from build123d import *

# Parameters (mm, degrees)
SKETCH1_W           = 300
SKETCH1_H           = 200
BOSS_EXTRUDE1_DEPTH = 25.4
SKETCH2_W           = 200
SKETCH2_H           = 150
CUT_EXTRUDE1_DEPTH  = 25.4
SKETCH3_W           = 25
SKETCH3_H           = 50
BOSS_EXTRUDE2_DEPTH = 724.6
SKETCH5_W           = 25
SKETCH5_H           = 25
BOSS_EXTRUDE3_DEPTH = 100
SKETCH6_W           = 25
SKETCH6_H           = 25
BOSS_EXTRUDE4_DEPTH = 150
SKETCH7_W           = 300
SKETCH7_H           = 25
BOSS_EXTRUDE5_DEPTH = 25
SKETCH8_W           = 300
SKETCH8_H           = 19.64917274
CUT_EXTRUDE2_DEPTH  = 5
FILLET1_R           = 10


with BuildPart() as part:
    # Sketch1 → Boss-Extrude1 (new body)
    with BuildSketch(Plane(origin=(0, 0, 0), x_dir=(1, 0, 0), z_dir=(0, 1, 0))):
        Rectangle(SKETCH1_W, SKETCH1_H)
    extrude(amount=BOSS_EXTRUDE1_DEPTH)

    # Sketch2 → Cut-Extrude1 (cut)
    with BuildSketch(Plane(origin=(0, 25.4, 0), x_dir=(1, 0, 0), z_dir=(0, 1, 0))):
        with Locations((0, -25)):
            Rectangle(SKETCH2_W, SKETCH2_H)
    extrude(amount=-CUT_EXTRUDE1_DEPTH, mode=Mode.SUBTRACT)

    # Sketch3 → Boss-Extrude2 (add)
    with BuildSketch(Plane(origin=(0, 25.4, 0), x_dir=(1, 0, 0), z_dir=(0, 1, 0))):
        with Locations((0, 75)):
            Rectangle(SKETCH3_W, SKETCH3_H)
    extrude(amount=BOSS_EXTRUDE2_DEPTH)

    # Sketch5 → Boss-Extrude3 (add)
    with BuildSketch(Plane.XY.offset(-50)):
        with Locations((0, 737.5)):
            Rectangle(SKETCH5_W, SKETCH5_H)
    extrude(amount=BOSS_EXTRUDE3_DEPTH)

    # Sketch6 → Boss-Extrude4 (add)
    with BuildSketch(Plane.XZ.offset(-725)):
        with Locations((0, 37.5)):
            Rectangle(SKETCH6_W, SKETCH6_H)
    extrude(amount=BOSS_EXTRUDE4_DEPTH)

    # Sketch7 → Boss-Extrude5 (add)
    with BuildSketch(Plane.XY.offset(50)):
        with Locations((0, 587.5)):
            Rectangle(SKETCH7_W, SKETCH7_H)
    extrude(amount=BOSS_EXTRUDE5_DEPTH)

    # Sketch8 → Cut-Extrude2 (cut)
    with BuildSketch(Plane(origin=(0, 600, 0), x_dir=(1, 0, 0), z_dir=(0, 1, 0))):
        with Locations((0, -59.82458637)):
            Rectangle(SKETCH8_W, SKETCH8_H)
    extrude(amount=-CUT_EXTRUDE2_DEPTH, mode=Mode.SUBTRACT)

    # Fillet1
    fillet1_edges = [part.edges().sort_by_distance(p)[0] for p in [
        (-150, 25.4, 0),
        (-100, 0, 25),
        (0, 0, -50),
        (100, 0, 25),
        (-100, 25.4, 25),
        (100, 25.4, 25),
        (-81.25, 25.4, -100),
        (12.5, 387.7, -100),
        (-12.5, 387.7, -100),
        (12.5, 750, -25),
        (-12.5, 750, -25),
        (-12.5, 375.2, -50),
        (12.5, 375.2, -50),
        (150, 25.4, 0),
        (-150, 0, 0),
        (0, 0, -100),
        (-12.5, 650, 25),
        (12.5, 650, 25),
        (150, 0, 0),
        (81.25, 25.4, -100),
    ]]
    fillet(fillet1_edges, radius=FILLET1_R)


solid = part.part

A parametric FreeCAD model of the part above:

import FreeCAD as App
import Part
import Sketcher
from FreeCAD import Vector


def edges_at(feature, points):
    """Names of the edges that pass closest to the given points."""
    edges = feature.Shape.Edges
    near = lambda p: min(range(len(edges)), key=lambda i: edges[i].distToShape(Part.Vertex(*p))[0])
    return sorted({f"Edge{near(p) + 1}" for p in points})


def add_polygon(sketch, points):
    """Adds a closed chain of lines whose ends are joined by coincident constraints."""
    first, n = sketch.GeometryCount, len(points)
    for a, b in zip(points, points[1:] + points[:1]):
        sketch.addGeometry(Part.LineSegment(App.Vector(*a, 0), App.Vector(*b, 0)), False)
    for i in range(n):
        sketch.addConstraint(Sketcher.Constraint("Coincident", first + i, 2, first + (i + 1) % n, 1))

doc = App.newDocument("Part")
body = doc.addObject("PartDesign::Body", "Body")

# Sketch on XZ plane
sketch1 = body.newObject("Sketcher::SketchObject", "Sketch")
sketch1.AttachmentSupport = (doc.getObject("XZ_Plane"), [""])
sketch1.MapMode = "FlatFace"
add_polygon(sketch1, [(-150, -100), (-150, 100), (150, 100), (150, -100)])  # lines 0-3
sketch1.addConstraint([
    Sketcher.Constraint("Vertical", 0),
    Sketcher.Constraint("Horizontal", 1),
    Sketcher.Constraint("Vertical", 2),
    Sketcher.Constraint("Horizontal", 3),
    Sketcher.Constraint("Symmetric", 0, 2, 2, 2, -1, 1),
    Sketcher.Constraint("DistanceX", 1, 1, 1, 2, 300.0),
    Sketcher.Constraint("DistanceY", 0, 1, 0, 2, 200.0),
])
pad1 = body.newObject("PartDesign::Pad", "Pad")
pad1.Profile = sketch1
pad1.Length = 25.4
pad1.Reversed = True

# Sketch on XZ plane
sketch2 = body.newObject("Sketcher::SketchObject", "Sketch001")
sketch2.AttachmentSupport = (doc.getObject("XZ_Plane"), [""])
sketch2.MapMode = "FlatFace"
sketch2.AttachmentOffset = App.Placement(Vector(0, 0, -25.4), App.Rotation())
add_polygon(sketch2, [(-100, -50), (-100, 100), (100, 100), (100, -50)])  # lines 0-3
sketch2.addConstraint([
    Sketcher.Constraint("Vertical", 0),
    Sketcher.Constraint("Horizontal", 1),
    Sketcher.Constraint("Vertical", 2),
    Sketcher.Constraint("Horizontal", 3),
    Sketcher.Constraint("DistanceX", 1, 1, 1, 2, 200.0),
    Sketcher.Constraint("DistanceY", 0, 1, 0, 2, 150.0),
    Sketcher.Constraint("DistanceX", 0, 2, -1, 1, 100.0),
    Sketcher.Constraint("DistanceY", -1, 1, 0, 2, 100.0),
])
pocket1 = body.newObject("PartDesign::Pocket", "Pocket")
pocket1.Profile = sketch2
pocket1.Length = 25.4
pocket1.Reversed = True

# Sketch on XZ plane
sketch3 = body.newObject("Sketcher::SketchObject", "Sketch002")
sketch3.AttachmentSupport = (doc.getObject("XZ_Plane"), [""])
sketch3.MapMode = "FlatFace"
sketch3.AttachmentOffset = App.Placement(Vector(0, 0, -25.4), App.Rotation())
add_polygon(sketch3, [(-12, -100), (-12, -50), (12, -50), (12, -100)])  # lines 0-3
sketch3.addConstraint([
    Sketcher.Constraint("Vertical", 0),
    Sketcher.Constraint("Horizontal", 1),
    Sketcher.Constraint("Vertical", 2),
    Sketcher.Constraint("Horizontal", 3),
    Sketcher.Constraint("DistanceX", 1, 1, 1, 2, 25.0),
    Sketcher.Constraint("DistanceY", 0, 1, 0, 2, 50.0),
    Sketcher.Constraint("DistanceY", 0, 2, -1, 1, 50.0),
    Sketcher.Constraint("DistanceX", 0, 2, -1, 1, 12.5),
])
pad2 = body.newObject("PartDesign::Pad", "Pad001")
pad2.Profile = sketch3
pad2.Length = 724.6
pad2.Reversed = True

# Sketch on XY plane
sketch4 = body.newObject("Sketcher::SketchObject", "Sketch003")
sketch4.AttachmentSupport = (doc.getObject("XY_Plane"), [""])
sketch4.MapMode = "FlatFace"
sketch4.AttachmentOffset = App.Placement(Vector(0, 0, -50), App.Rotation())
add_polygon(sketch4, [(-12, 750), (-12, 725), (12, 725), (12, 750)])  # lines 0-3
sketch4.addConstraint([
    Sketcher.Constraint("Vertical", 0),
    Sketcher.Constraint("Horizontal", 1),
    Sketcher.Constraint("Vertical", 2),
    Sketcher.Constraint("Horizontal", 3),
    Sketcher.Constraint("Equal", 3, 0),
    Sketcher.Constraint("DistanceX", 1, 1, 1, 2, 25.0),
    Sketcher.Constraint("DistanceY", -1, 1, 0, 2, 725.0),
    Sketcher.Constraint("DistanceX", 0, 2, -1, 1, 12.5),
])
pad3 = body.newObject("PartDesign::Pad", "Pad002")
pad3.Profile = sketch4
pad3.Length = 100

# Sketch on XZ plane
sketch5 = body.newObject("Sketcher::SketchObject", "Sketch004")
sketch5.AttachmentSupport = (doc.getObject("XZ_Plane"), [""])
sketch5.MapMode = "FlatFace"
sketch5.AttachmentOffset = App.Placement(Vector(0, 0, -725), App.Rotation())
add_polygon(sketch5, [(-12, 50), (-12, 25), (12, 25), (12, 50)])  # lines 0-3
sketch5.addConstraint([
    Sketcher.Constraint("Vertical", 0),
    Sketcher.Constraint("Horizontal", 1),
    Sketcher.Constraint("Vertical", 2),
    Sketcher.Constraint("Horizontal", 3),
    Sketcher.Constraint("Equal", 3, 0),
    Sketcher.Constraint("DistanceX", 1, 1, 1, 2, 25.0),
    Sketcher.Constraint("DistanceY", -1, 1, 0, 2, 25.0),
    Sketcher.Constraint("DistanceX", 0, 2, -1, 1, 12.5),
])
pad4 = body.newObject("PartDesign::Pad", "Pad003")
pad4.Profile = sketch5
pad4.Length = 150

# Sketch on XY plane
sketch6 = body.newObject("Sketcher::SketchObject", "Sketch005")
sketch6.AttachmentSupport = (doc.getObject("XY_Plane"), [""])
sketch6.MapMode = "FlatFace"
sketch6.AttachmentOffset = App.Placement(Vector(0, 0, 50), App.Rotation())
add_polygon(sketch6, [(-150, 600), (-150, 575), (150, 575), (150, 600)])  # lines 0-3
sketch6.addConstraint([
    Sketcher.Constraint("Vertical", 0),
    Sketcher.Constraint("Horizontal", 1),
    Sketcher.Constraint("Vertical", 2),
    Sketcher.Constraint("Horizontal", 3),
    Sketcher.Constraint("DistanceX", 1, 1, 1, 2, 300.0),
    Sketcher.Constraint("DistanceY", 0, 2, 0, 1, 25.0),
    Sketcher.Constraint("DistanceX", 0, 2, -1, 1, 150.0),
    Sketcher.Constraint("DistanceY", -1, 1, 0, 2, 575.0),
])
pad5 = body.newObject("PartDesign::Pad", "Pad004")
pad5.Profile = sketch6
pad5.Length = 25

# Sketch on XZ plane
sketch7 = body.newObject("Sketcher::SketchObject", "Sketch006")
sketch7.AttachmentSupport = (doc.getObject("XZ_Plane"), [""])
sketch7.MapMode = "FlatFace"
sketch7.AttachmentOffset = App.Placement(Vector(0, 0, -600), App.Rotation())
add_polygon(sketch7, [(-150, 50), (-150, 70), (150, 70), (150, 50)])  # lines 0-3
sketch7.addConstraint([
    Sketcher.Constraint("Vertical", 0),
    Sketcher.Constraint("Horizontal", 1),
    Sketcher.Constraint("Vertical", 2),
    Sketcher.Constraint("Horizontal", 3),
    Sketcher.Constraint("DistanceX", 1, 1, 1, 2, 300.0),
    Sketcher.Constraint("DistanceX", 0, 2, -1, 1, 150.0),
    Sketcher.Constraint("DistanceY", -1, 1, 2, 2, 50.0),
    Sketcher.Constraint("DistanceY", 0, 1, 0, 2, 19.649173),
])
pocket2 = body.newObject("PartDesign::Pocket", "Pocket001")
pocket2.Profile = sketch7
pocket2.Length = 5
pocket2.Reversed = True
doc.recompute()

fillet = body.newObject("PartDesign::Fillet", "Fillet")
fillet.Base = (pocket2, edges_at(pocket2, [
    (-150, 25.4, 0),
    (-100, 0, 25),
    (0, 0, -50),
    (100, 0, 25),
    (-100, 25.4, 25),
    (100, 25.4, 25),
    (-81.25, 25.4, -100),
    (12.5, 387.7, -100),
    (-12.5, 387.7, -100),
    (12.5, 750, -25),
    (-12.5, 750, -25),
    (-12.5, 375.2, -50),
    (12.5, 375.2, -50),
    (150, 25.4, 0),
    (-150, 0, 0),
    (0, 0, -100),
    (-12.5, 650, 25),
    (12.5, 650, 25),
    (150, 0, 0),
    (81.25, 25.4, -100),
]))
fillet.Radius = 10

doc.recompute()
